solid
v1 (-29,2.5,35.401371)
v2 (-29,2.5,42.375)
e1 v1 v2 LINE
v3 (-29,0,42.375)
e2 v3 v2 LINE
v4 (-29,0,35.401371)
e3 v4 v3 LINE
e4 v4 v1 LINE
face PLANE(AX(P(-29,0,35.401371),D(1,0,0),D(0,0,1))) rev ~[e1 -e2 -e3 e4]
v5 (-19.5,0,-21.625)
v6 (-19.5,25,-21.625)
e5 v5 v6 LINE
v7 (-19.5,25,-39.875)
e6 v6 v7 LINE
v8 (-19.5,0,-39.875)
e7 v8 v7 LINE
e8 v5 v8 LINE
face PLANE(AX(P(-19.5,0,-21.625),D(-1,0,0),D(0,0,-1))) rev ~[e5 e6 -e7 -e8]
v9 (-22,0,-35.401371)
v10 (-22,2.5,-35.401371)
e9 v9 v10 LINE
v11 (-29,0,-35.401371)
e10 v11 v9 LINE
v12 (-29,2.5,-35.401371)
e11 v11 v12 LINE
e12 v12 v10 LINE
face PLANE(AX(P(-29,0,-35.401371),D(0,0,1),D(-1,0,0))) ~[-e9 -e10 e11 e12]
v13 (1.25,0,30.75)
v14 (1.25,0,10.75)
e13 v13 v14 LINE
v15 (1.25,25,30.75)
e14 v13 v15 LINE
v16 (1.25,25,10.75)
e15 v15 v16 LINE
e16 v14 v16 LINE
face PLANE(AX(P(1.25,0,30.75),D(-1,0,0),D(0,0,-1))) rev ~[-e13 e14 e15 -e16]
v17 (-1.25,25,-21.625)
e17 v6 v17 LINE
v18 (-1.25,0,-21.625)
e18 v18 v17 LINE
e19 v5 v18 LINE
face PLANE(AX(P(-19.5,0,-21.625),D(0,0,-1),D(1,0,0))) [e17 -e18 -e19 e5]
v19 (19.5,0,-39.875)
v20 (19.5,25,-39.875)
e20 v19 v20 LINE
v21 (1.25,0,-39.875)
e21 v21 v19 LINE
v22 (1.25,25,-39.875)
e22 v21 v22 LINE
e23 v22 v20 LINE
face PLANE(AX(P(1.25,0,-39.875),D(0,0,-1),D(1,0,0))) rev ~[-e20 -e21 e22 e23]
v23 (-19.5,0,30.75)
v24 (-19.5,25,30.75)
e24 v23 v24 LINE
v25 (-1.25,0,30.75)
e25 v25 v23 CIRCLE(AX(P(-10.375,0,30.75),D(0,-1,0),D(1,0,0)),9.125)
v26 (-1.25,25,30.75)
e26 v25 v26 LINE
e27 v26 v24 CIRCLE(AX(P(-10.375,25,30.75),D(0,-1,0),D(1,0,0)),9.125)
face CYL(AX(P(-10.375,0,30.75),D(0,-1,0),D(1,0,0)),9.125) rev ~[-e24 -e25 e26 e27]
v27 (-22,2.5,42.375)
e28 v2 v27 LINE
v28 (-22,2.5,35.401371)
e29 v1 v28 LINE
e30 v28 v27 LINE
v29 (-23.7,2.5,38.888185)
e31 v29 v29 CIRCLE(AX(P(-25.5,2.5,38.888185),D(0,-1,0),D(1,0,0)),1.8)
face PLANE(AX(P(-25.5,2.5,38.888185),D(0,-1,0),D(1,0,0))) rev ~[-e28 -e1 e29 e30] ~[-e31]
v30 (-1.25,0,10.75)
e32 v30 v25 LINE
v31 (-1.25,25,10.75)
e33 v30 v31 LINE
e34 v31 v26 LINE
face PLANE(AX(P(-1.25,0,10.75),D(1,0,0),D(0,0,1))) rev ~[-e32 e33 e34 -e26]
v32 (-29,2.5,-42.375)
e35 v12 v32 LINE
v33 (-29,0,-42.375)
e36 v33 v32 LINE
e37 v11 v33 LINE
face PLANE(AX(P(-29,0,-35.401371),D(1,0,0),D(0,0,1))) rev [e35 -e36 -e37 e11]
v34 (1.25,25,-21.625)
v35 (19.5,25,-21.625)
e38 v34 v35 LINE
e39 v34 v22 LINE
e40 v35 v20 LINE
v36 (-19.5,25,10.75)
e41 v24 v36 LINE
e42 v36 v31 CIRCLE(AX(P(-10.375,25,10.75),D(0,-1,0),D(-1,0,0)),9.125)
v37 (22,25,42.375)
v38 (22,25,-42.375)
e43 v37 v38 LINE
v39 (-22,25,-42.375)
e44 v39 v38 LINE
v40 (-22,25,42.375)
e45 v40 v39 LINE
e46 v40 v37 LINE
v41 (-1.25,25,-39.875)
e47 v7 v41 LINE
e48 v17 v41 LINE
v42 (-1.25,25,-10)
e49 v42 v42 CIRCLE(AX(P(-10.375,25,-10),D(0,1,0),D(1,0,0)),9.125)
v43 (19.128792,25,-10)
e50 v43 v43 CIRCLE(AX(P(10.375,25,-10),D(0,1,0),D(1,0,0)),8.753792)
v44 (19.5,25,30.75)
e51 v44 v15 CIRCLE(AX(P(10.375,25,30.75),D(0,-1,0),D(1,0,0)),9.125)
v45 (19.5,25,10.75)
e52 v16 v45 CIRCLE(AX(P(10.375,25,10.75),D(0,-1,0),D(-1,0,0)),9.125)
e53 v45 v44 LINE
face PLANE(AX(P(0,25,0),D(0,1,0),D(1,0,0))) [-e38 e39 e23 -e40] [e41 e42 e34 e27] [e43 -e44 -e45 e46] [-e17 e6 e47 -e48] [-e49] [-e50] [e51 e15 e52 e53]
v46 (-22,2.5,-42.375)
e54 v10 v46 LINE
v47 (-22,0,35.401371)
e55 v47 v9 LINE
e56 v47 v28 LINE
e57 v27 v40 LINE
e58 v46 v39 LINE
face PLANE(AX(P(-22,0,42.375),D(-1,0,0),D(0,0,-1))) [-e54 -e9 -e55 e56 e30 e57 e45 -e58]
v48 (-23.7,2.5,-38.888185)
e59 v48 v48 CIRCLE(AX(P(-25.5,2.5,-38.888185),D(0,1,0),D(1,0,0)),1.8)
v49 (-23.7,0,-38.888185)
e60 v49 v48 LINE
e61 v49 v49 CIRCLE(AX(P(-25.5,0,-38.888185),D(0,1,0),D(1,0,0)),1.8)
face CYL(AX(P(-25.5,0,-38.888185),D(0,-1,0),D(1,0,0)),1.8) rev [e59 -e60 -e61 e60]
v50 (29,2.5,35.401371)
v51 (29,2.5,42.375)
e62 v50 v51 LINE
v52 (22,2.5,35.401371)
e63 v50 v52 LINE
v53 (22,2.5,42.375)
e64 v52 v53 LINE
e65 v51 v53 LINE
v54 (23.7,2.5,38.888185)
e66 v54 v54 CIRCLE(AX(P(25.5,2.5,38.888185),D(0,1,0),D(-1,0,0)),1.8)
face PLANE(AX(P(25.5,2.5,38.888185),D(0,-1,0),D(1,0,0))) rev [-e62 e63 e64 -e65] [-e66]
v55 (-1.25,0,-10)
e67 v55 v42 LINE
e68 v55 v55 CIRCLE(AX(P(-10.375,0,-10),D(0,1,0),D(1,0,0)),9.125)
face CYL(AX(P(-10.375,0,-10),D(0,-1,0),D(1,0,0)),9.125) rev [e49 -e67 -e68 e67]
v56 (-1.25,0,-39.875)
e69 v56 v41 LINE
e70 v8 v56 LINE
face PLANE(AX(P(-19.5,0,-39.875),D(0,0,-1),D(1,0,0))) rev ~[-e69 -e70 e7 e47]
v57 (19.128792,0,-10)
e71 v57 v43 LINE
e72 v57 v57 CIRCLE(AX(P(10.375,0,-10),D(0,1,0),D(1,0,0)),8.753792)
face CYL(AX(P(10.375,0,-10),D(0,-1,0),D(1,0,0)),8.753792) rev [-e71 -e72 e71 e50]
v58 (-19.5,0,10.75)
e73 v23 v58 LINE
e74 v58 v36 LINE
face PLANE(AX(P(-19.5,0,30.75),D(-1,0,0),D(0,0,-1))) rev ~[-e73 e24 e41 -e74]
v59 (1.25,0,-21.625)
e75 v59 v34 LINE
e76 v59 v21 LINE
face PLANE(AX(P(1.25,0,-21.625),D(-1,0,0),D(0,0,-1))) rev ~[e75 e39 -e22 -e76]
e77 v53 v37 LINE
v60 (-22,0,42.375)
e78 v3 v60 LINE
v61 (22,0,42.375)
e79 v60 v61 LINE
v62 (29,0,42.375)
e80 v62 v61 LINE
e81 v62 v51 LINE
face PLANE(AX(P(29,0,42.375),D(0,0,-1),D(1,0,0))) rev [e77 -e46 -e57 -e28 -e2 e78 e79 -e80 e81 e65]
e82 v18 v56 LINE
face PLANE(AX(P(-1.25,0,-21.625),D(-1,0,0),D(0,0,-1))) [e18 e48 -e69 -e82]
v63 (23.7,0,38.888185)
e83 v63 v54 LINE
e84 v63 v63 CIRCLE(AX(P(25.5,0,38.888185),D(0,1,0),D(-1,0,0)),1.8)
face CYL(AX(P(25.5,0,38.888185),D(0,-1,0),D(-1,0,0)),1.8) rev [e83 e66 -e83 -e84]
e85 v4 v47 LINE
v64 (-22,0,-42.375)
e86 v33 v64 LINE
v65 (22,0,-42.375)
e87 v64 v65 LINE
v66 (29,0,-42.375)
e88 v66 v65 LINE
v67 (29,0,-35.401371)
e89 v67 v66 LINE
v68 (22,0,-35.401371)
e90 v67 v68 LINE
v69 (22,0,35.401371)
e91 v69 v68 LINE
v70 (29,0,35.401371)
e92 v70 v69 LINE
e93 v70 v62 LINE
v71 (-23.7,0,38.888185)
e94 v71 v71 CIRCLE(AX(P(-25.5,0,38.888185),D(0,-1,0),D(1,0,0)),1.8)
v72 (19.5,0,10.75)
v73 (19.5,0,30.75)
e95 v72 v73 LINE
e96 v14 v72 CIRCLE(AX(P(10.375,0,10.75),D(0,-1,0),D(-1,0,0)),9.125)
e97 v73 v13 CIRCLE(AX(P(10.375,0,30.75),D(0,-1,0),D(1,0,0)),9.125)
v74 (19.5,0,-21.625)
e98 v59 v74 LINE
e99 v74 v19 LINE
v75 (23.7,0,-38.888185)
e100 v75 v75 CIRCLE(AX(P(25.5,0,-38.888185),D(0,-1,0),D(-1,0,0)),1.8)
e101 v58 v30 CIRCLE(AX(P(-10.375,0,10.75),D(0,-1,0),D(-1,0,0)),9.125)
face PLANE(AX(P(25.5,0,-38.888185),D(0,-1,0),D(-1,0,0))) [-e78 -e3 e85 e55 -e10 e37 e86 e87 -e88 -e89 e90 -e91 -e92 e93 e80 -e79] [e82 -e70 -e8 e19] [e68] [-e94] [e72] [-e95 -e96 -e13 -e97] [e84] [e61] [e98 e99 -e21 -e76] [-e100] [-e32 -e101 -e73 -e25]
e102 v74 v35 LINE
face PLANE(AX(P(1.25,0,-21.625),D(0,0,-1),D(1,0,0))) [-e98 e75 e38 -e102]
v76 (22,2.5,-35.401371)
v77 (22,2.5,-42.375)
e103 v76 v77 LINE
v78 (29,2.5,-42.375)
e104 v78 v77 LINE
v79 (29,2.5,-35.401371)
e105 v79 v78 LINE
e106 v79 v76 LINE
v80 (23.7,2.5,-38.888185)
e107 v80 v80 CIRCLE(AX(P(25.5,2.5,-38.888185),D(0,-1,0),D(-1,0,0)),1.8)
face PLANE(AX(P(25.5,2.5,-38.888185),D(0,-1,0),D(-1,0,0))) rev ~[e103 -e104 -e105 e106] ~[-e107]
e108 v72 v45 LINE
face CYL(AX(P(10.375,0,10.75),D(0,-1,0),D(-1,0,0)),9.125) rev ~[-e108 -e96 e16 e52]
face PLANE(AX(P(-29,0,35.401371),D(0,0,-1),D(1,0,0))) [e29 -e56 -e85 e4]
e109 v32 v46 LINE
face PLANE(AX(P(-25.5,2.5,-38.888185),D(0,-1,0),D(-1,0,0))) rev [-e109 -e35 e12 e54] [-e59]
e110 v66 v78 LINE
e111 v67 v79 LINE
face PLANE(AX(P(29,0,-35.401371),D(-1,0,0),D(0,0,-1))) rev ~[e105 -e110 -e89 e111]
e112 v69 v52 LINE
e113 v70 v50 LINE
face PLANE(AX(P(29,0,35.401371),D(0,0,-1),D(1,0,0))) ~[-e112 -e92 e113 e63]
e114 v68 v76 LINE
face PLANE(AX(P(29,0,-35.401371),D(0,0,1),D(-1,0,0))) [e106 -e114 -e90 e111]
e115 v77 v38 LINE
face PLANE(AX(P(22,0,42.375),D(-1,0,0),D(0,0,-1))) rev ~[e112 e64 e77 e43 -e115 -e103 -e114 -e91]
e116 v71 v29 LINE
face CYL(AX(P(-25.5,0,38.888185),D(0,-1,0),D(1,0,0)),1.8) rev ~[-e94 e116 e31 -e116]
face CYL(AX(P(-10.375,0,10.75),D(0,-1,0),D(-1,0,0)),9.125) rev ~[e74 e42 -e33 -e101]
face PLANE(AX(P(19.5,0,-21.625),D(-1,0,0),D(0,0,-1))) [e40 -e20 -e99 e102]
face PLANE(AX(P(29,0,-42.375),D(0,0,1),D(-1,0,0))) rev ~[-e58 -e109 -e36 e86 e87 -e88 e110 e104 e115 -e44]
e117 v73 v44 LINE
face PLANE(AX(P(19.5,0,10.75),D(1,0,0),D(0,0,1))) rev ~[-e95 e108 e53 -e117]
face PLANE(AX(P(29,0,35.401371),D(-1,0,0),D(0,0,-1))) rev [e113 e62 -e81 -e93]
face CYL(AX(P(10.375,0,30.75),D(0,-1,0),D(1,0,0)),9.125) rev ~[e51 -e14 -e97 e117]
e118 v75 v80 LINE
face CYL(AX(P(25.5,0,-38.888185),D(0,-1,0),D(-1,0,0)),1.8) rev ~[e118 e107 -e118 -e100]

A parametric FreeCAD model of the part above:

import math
import FreeCAD as App
import Part
import Sketcher
from FreeCAD import Vector
Q = App.Units.Quantity


def add_polygon(sketch, points):
    """Adds a closed chain of lines whose ends are joined by coincident constraints."""
    first, n = sketch.GeometryCount, len(points)
    for a, b in zip(points, points[1:] + points[:1]):
        sketch.addGeometry(Part.LineSegment(App.Vector(*a, 0), App.Vector(*b, 0)), False)
    for i in range(n):
        sketch.addConstraint(Sketcher.Constraint("Coincident", first + i, 2, first + (i + 1) % n, 1))

doc = App.newDocument("Part")
body = doc.addObject("PartDesign::Body", "Body")

# Sketch on XZ plane
sketch1 = body.newObject("Sketcher::SketchObject", "Sketch")
sketch1.AttachmentSupport = (doc.getObject("XZ_Plane"), [""])
sketch1.MapMode = "FlatFace"
add_polygon(sketch1, [(-22, -42), (-22, 42), (22, 42), (22, -42)])  # lines 0-3
sketch1.addGeometry(Part.ArcOfCircle(Part.Circle(Vector(-10, 11, 0), Vector(0, 0, 1), 9), math.radians(180), math.radians(360)), False)  # 4
sketch1.addGeometry(Part.LineSegment(Vector(-1, 11, 0), Vector(-1, 31, 0)), False)  # 5
sketch1.addGeometry(Part.ArcOfCircle(Part.Circle(Vector(-10, 31, 0), Vector(0, 0, 1), 9), math.radians(0), math.radians(180)), False)  # 6
sketch1.addGeometry(Part.LineSegment(Vector(-20, 31, 0), Vector(-20, 11, 0)), False)  # 7
sketch1.addGeometry(Part.ArcOfCircle(Part.Circle(Vector(10, 11, 0), Vector(0, 0, 1), 9), math.radians(180), math.radians(360)), False)  # 8
sketch1.addGeometry(Part.LineSegment(Vector(20, 11, 0), Vector(20, 31, 0)), False)  # 9
sketch1.addGeometry(Part.ArcOfCircle(Part.Circle(Vector(10, 31, 0), Vector(0, 0, 1), 9), math.radians(0), math.radians(180)), False)  # 10
sketch1.addGeometry(Part.LineSegment(Vector(1, 31, 0), Vector(1, 11, 0)), False)  # 11
sketch1.addGeometry(Part.Circle(Vector(-10, -10, 0), Vector(0, 0, 1), 9), False)  # 12
add_polygon(sketch1, [(-1, -22), (-20, -22), (-20, -40), (-1, -40)])  # lines 13-16
sketch1.addGeometry(Part.Circle(Vector(10, -10, 0), Vector(0, 0, 1), 9), False)  # 17
add_polygon(sketch1, [(20, -22), (1, -22), (1, -40), (20, -40)])  # lines 18-21
sketch1.addConstraint(Sketcher.Constraint("Tangent", 4, 2, 5, 1))
sketch1.addConstraint(Sketcher.Constraint("Tangent", 5, 2, 6, 1))
sketch1.addConstraint(Sketcher.Constraint("Tangent", 6, 2, 7, 1))
sketch1.addConstraint(Sketcher.Constraint("Tangent", 7, 2, 4, 1))
sketch1.addConstraint(Sketcher.Constraint("Tangent", 8, 2, 9, 1))
sketch1.addConstraint(Sketcher.Constraint("Tangent", 9, 2, 10, 1))
sketch1.addConstraint(Sketcher.Constraint("Tangent", 10, 2, 11, 1))
sketch1.addConstraint(Sketcher.Constraint("Tangent", 11, 2, 8, 1))
sketch1.addConstraint(Sketcher.Constraint("Vertical", 0))
sketch1.addConstraint(Sketcher.Constraint("Horizontal", 1))
sketch1.addConstraint(Sketcher.Constraint("Vertical", 2))
sketch1.addConstraint(Sketcher.Constraint("Horizontal", 3))
sketch1.addConstraint(Sketcher.Constraint("Vertical", 5))
sketch1.addConstraint(Sketcher.Constraint("Vertical", 7))
sketch1.addConstraint(Sketcher.Constraint("Vertical", 9))
sketch1.addConstraint(Sketcher.Constraint("Vertical", 11))
sketch1.addConstraint(Sketcher.Constraint("Horizontal", 13))
sketch1.addConstraint(Sketcher.Constraint("Vertical", 14))
sketch1.addConstraint(Sketcher.Constraint("Horizontal", 15))
sketch1.addConstraint(Sketcher.Constraint("Vertical", 16))
sketch1.addConstraint(Sketcher.Constraint("Horizontal", 18))
sketch1.addConstraint(Sketcher.Constraint("Vertical", 19))
sketch1.addConstraint(Sketcher.Constraint("Horizontal", 20))
sketch1.addConstraint(Sketcher.Constraint("Vertical", 21))
sketch1.addConstraint(Sketcher.Constraint("Equal", 6, 8))
sketch1.addConstraint(Sketcher.Constraint("Equal", 10, 12))
sketch1.addConstraint(Sketcher.Constraint("Symmetric", 0, 2, 2, 2, -1, 1))
sketch1.addConstraint(Sketcher.Constraint("Symmetric", 4, 3, 8, 3, -2))
sketch1.addConstraint(Sketcher.Constraint("Symmetric", 12, 3, 17, 3, -2))
sketch1.addConstraint(Sketcher.Constraint("Symmetric", 16, 2, 18, 2, -2))
sketch1.addConstraint(Sketcher.Constraint("Symmetric", 14, 2, 20, 2, -2))
sketch1.addConstraint(Sketcher.Constraint("Horizontal", 6, 3, 10, 3))
sketch1.addConstraint(Sketcher.Constraint("Vertical", 6, 3, 12, 3))
sketch1.addConstraint(Sketcher.Constraint("Vertical", 7, 2, 13, 2))
sketch1.addConstraint(Sketcher.Constraint("Vertical", 5, 2, 15, 2))
sketch1.addConstraint(Sketcher.Constraint("Equal", 20, 14))
sketch1.addConstraint(Sketcher.Constraint("Diameter", 12, Q("18.25 mm")))
sketch1.addConstraint(Sketcher.Constraint("DistanceX", 1, 1, 1, 2, Q("44 mm")))
sketch1.addConstraint(Sketcher.Constraint("DistanceY", 5, 1, 5, 2, Q("20 mm")))
sketch1.addConstraint(Sketcher.Constraint("DistanceY", 12, 3, -1, 1, Q("10 mm")))
sketch1.addConstraint(Sketcher.Constraint("DistanceY", 0, 1, 0, 2, Q("84.75 mm")))
sketch1.addConstraint(Sketcher.Constraint("DistanceX", 6, 2, -1, 1, Q("19.5 mm")))
sketch1.addConstraint(Sketcher.Constraint("DistanceY", 3, 2, 14, 2, Q("2.5 mm")))
sketch1.addConstraint(Sketcher.Constraint("DistanceY", -1, 1, 4, 3, Q("10.75 mm")))
sketch1.addConstraint(Sketcher.Constraint("Diameter", 17, Q("17.507584 mm")))
pad1 = body.newObject("PartDesign::Pad", "Pad")
pad1.Profile = sketch1
pad1.Length = 25
pad1.Reversed = True

# Sketch on XZ plane
sketch2 = body.newObject("Sketcher::SketchObject", "Sketch001")
sketch2.AttachmentSupport = (doc.getObject("XZ_Plane"), [""])
sketch2.MapMode = "FlatFace"
add_polygon(sketch2, [(-29, 42.4), (-29, 35.4), (-22, 35.4), (-22, 42.4)])  # lines 0-3
sketch2.addGeometry(Part.Circle(Vector(-25.5, 38.9, 0), Vector(0, 0, 1), 1.8), False)  # 4
sketch2.addConstraint(Sketcher.Constraint("Vertical", 0))
sketch2.addConstraint(Sketcher.Constraint("Horizontal", 1))
sketch2.addConstraint(Sketcher.Constraint("Vertical", 2))
sketch2.addConstraint(Sketcher.Constraint("Horizontal", 3))
sketch2.addConstraint(Sketcher.Constraint("Diameter", 4, Q("3.6 mm")))
sketch2.addConstraint(Sketcher.Constraint("DistanceX", 1, 1, 1, 2, Q("7 mm")))
sketch2.addConstraint(Sketcher.Constraint("DistanceX", 0, 2, -1, 1, Q("29 mm")))
sketch2.addConstraint(Sketcher.Constraint("DistanceX", 4, 3, -1, 1, Q("25.5 mm")))
sketch2.addConstraint(Sketcher.Constraint("DistanceY", -1, 1, 2, 2, Q("42.375 mm")))
sketch2.addConstraint(Sketcher.Constraint("DistanceY", 0, 2, 0, 1, Q("6.973629 mm")))
sketch2.addConstraint(Sketcher.Constraint("DistanceY", -1, 1, 4, 3, Q("38.888185 mm")))
pad2 = body.newObject("PartDesign::Pad", "Pad001")
pad2.Profile = sketch2
pad2.Length = 2.5
pad2.Reversed = True
doc.recompute()

mirrored = body.newObject("PartDesign::Mirrored", "Mirrored")
mirrored.Originals = [pad2]
mirrored.MirrorPlane = (doc.getObject("YZ_Plane"), [""])
body.Tip = mirrored
doc.recompute()

mirrored2 = body.newObject("PartDesign::Mirrored", "Mirrored001")
mirrored2.Originals = [pad2]
mirrored2.MirrorPlane = (doc.getObject("XY_Plane"), [""])
body.Tip = mirrored2

# Sketch on XZ plane
sketch3 = body.newObject("Sketcher::SketchObject", "Sketch002")
sketch3.AttachmentSupport = (doc.getObject("XZ_Plane"), [""])
sketch3.MapMode = "FlatFace"
add_polygon(sketch3, [(29, -42.4), (29, -35.4), (22, -35.4), (22, -42.4)])  # lines 0-3
sketch3.addGeometry(Part.Circle(Vector(25.5, -38.9, 0), Vector(0, 0, 1), 1.8), False)  # 4
sketch3.addConstraint(Sketcher.Constraint("Vertical", 0))
sketch3.addConstraint(Sketcher.Constraint("Horizontal", 1))
sketch3.addConstraint(Sketcher.Constraint("Vertical", 2))
sketch3.addConstraint(Sketcher.Constraint("Horizontal", 3))
sketch3.addConstraint(Sketcher.Constraint("Diameter", 4, Q("3.6 mm")))
sketch3.addConstraint(Sketcher.Constraint("DistanceX", 1, 2, 1, 1, Q("7 mm")))
sketch3.addConstraint(Sketcher.Constraint("DistanceX", -1, 1, 0, 2, Q("29 mm")))
sketch3.addConstraint(Sketcher.Constraint("DistanceX", -1, 1, 4, 3, Q("25.5 mm")))
sketch3.addConstraint(Sketcher.Constraint("DistanceY", 2, 2, -1, 1, Q("42.375 mm")))
sketch3.addConstraint(Sketcher.Constraint("DistanceY", 0, 1, 0, 2, Q("6.973629 mm")))
sketch3.addConstraint(Sketcher.Constraint("DistanceY", 4, 3, -1, 1, Q("38.888185 mm")))
pad3 = body.newObject("PartDesign::Pad", "Pad002")
pad3.Profile = sketch3
pad3.Length = 2.5
pad3.Reversed = True

doc.recompute()
